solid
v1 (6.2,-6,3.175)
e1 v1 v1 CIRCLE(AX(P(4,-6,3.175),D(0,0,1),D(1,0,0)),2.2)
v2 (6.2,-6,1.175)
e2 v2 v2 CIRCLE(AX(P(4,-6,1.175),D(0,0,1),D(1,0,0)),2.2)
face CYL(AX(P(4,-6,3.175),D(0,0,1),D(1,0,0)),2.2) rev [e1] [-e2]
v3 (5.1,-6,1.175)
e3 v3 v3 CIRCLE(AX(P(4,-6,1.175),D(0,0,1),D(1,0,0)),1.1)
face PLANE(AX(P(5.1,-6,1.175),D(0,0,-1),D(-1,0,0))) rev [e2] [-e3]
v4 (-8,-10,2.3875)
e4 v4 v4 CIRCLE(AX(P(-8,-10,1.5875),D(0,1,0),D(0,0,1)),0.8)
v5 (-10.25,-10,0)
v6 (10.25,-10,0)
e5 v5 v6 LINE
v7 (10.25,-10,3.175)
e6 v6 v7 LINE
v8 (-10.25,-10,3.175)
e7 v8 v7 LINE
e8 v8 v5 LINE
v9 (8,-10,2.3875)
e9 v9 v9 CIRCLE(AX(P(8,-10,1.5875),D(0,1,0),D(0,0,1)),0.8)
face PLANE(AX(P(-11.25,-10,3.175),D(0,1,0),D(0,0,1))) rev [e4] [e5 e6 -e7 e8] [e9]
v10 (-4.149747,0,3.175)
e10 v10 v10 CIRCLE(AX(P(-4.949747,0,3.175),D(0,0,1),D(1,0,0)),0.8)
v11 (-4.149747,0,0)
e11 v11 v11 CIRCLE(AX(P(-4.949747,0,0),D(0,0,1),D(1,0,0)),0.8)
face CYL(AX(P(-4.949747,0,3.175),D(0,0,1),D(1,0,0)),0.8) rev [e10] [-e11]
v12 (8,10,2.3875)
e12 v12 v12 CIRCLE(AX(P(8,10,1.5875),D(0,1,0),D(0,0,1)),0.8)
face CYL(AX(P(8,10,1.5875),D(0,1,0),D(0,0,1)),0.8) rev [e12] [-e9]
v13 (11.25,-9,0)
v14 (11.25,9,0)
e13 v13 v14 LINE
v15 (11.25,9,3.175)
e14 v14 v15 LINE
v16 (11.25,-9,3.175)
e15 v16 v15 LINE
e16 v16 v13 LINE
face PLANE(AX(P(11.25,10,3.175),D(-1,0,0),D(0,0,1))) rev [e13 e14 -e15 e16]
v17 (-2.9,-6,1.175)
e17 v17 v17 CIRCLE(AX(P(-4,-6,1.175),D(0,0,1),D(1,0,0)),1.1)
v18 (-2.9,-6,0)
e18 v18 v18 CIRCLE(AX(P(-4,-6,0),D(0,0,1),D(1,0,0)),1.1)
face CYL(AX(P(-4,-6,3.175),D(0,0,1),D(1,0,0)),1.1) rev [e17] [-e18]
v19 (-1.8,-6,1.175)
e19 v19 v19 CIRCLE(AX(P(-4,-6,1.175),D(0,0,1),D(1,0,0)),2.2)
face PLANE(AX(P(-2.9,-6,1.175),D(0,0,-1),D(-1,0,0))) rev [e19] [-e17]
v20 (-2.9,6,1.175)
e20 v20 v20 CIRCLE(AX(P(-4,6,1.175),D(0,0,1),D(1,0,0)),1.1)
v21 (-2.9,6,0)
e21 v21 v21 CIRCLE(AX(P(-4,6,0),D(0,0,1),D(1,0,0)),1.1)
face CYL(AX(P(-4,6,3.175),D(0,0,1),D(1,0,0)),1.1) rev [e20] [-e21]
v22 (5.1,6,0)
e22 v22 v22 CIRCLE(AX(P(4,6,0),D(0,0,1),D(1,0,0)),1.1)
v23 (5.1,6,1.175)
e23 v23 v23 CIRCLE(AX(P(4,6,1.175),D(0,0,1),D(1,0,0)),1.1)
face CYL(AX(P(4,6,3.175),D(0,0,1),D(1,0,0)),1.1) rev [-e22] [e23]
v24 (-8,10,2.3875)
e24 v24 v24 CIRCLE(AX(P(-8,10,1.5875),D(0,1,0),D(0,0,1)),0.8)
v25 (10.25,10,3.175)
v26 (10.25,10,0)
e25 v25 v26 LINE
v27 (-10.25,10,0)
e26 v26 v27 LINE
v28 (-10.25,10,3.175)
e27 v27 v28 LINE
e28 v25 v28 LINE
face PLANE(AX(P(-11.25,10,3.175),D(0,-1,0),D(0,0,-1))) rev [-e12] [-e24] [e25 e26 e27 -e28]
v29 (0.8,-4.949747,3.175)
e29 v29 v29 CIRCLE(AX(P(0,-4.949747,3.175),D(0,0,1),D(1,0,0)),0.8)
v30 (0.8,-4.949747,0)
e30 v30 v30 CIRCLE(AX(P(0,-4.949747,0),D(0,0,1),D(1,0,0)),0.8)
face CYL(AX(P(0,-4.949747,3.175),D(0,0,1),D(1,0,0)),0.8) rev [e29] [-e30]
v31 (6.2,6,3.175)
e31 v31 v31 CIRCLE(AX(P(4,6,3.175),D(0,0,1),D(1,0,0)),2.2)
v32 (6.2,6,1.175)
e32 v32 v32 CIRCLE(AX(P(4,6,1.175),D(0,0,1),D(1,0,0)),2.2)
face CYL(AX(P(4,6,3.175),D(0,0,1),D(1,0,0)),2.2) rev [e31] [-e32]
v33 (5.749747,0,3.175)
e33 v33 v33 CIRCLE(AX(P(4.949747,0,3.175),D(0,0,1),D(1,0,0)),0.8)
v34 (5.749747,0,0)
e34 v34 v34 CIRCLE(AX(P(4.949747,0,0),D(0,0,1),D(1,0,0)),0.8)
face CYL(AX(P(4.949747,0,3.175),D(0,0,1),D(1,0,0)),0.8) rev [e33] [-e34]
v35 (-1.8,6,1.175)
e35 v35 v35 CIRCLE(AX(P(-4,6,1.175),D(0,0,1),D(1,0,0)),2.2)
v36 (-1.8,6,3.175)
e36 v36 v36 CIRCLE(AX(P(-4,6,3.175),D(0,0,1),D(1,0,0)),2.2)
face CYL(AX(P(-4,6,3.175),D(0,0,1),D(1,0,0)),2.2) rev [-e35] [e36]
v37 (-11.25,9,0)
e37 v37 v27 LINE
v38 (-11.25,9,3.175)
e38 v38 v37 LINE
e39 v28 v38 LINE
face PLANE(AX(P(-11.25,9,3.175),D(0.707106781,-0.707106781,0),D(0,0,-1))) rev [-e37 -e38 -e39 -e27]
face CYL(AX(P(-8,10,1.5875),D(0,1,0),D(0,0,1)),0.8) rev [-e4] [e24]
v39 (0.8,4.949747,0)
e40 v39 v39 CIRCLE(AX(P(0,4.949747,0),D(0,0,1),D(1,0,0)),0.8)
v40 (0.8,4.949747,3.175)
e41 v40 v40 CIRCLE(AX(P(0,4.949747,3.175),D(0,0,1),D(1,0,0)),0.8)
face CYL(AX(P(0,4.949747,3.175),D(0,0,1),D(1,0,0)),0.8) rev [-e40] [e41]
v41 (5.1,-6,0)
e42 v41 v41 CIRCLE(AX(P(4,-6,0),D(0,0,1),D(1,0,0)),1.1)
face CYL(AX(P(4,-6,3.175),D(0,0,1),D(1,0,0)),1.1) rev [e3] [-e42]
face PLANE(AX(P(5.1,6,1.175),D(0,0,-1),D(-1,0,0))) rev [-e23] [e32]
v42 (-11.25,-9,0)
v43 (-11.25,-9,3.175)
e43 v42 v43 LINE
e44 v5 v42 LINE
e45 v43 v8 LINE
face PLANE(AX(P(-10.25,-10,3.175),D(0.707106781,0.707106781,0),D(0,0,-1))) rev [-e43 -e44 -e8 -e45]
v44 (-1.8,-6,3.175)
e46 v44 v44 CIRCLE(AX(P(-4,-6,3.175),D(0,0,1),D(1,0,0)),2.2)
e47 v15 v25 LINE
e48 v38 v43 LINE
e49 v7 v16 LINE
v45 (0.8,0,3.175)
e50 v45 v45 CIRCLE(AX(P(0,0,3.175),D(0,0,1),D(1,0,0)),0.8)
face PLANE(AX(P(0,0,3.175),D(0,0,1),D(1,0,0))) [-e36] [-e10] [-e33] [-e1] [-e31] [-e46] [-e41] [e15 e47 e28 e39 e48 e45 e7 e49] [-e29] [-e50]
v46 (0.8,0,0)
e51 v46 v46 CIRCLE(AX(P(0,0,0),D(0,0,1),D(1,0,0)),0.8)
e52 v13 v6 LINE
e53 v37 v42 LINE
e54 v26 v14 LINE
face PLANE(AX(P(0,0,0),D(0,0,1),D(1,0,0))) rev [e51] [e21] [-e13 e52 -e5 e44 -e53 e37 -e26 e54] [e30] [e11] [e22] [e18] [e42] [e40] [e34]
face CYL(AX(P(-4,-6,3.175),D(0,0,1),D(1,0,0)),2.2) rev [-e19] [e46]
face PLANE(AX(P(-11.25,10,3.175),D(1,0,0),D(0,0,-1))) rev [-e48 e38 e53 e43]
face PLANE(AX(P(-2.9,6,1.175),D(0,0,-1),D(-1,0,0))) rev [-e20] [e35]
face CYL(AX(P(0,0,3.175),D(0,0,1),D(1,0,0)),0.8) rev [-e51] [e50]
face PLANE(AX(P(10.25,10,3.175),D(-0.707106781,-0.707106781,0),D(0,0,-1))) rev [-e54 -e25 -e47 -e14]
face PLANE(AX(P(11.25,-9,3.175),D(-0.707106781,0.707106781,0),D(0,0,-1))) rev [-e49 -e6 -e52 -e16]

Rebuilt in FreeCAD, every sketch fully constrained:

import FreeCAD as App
import Part
import Sketcher

V = App.Vector
Q = App.Units.Quantity


def edges_at(feature, points):
    """Names of the edges that pass closest to the given points."""
    edges = feature.Shape.Edges
    near = lambda p: min(range(len(edges)), key=lambda i: edges[i].distToShape(Part.Vertex(*p))[0])
    return sorted({f"Edge{near(p) + 1}" for p in points})

doc = App.newDocument("Part")
body = doc.addObject("PartDesign::Body", "Body")

# Sketch on XY plane
sketch1 = body.newObject("Sketcher::SketchObject", "Sketch")
sketch1.AttachmentSupport = (doc.getObject("XY_Plane"), [""])
sketch1.MapMode = "FlatFace"
sketch1.addGeometry(Part.LineSegment(V(-11, 10, 0), V(-11, -10, 0)), False)
sketch1.addGeometry(Part.LineSegment(V(-11, -10, 0), V(11, -10, 0)), False)
sketch1.addGeometry(Part.LineSegment(V(11, -10, 0), V(11, 10, 0)), False)
sketch1.addGeometry(Part.LineSegment(V(11, 10, 0), V(-11, 10, 0)), False)
sketch1.addConstraint(Sketcher.Constraint("Coincident", 0, 2, 1, 1))
sketch1.addConstraint(Sketcher.Constraint("Coincident", 1, 2, 2, 1))
sketch1.addConstraint(Sketcher.Constraint("Coincident", 2, 2, 3, 1))
sketch1.addConstraint(Sketcher.Constraint("Coincident", 3, 2, 0, 1))
sketch1.addConstraint(Sketcher.Constraint("Vertical", 0))
sketch1.addConstraint(Sketcher.Constraint("Horizontal", 1))
sketch1.addConstraint(Sketcher.Constraint("Vertical", 2))
sketch1.addConstraint(Sketcher.Constraint("Horizontal", 3))
sketch1.addConstraint(Sketcher.Constraint("Symmetric", 0, 2, 2, 2, -1, 1))
sketch1.addConstraint(Sketcher.Constraint("DistanceY", 0, 2, 0, 1, Q("20 mm")))
sketch1.addConstraint(Sketcher.Constraint("DistanceX", 1, 1, 1, 2, Q("22.5 mm")))
pad1 = body.newObject("PartDesign::Pad", "Pad")
pad1.Profile = sketch1
pad1.Length = 3.175

# Sketch on XY plane
sketch2 = body.newObject("Sketcher::SketchObject", "Sketch001")
sketch2.AttachmentSupport = (doc.getObject("XY_Plane"), [""])
sketch2.MapMode = "FlatFace"
sketch2.AttachmentOffset = App.Placement(V(0, 0, 3.175), App.Rotation())
sketch2.addGeometry(Part.Circle(V(4, 6, 0), V(0, 0, 1), 1.1), False)
sketch2.addGeometry(Part.Circle(V(-4, -6, 0), V(0, 0, 1), 1.1), False)
sketch2.addGeometry(Part.Circle(V(-4, 6, 0), V(0, 0, 1), 1.1), False)
sketch2.addGeometry(Part.Circle(V(4, -6, 0), V(0, 0, 1), 1.1), False)
sketch2.addConstraint(Sketcher.Constraint("Equal", 0, 1))
sketch2.addConstraint(Sketcher.Constraint("Equal", 1, 2))
sketch2.addConstraint(Sketcher.Constraint("Equal", 2, 3))
sketch2.addConstraint(Sketcher.Constraint("Symmetric", 0, 3, 1, 3, -1, 1))
sketch2.addConstraint(Sketcher.Constraint("Symmetric", 2, 3, 3, 3, -1, 1))
sketch2.addConstraint(Sketcher.Constraint("Symmetric", 0, 3, 2, 3, -2))
sketch2.addConstraint(Sketcher.Constraint("Diameter", 0, Q("2.2 mm")))
sketch2.addConstraint(Sketcher.Constraint("DistanceX", -1, 1, 0, 3, Q("4 mm")))
sketch2.addConstraint(Sketcher.Constraint("DistanceY", -1, 1, 0, 3, Q("6 mm")))
doc.recompute()
hole = body.newObject("PartDesign::Hole", "Hole")
hole.Profile = sketch2
hole.ThreadType = "None"
hole.Diameter = 2.2
hole.DepthType = "ThroughAll"
hole.HoleCutType = "Counterbore"
hole.HoleCutDiameter = 4.4
hole.HoleCutDepth = 2

# Sketch on XZ plane
sketch3 = body.newObject("Sketcher::SketchObject", "Sketch002")
sketch3.AttachmentSupport = (doc.getObject("XZ_Plane"), [""])
sketch3.MapMode = "FlatFace"
sketch3.AttachmentOffset = App.Placement(V(0, 0, -10), App.Rotation())
sketch3.addGeometry(Part.Circle(V(8, 1.6, 0), V(0, 0, 1), 0.8), False)
sketch3.addGeometry(Part.Circle(V(-8, 1.6, 0), V(0, 0, 1), 0.8), False)
sketch3.addConstraint(Sketcher.Constraint("Equal", 0, 1))
sketch3.addConstraint(Sketcher.Constraint("Symmetric", 0, 3, 1, 3, -2))
sketch3.addConstraint(Sketcher.Constraint("Diameter", 0, Q("1.6 mm")))
sketch3.addConstraint(Sketcher.Constraint("DistanceX", -1, 1, 0, 3, Q("8 mm")))
sketch3.addConstraint(Sketcher.Constraint("DistanceY", -1, 1, 0, 3, Q("1.5875 mm")))
doc.recompute()
hole2 = body.newObject("PartDesign::Hole", "Hole001")
hole2.Profile = sketch3
hole2.ThreadType = "None"
hole2.Diameter = 1.6
hole2.DepthType = "ThroughAll"
hole2.Reversed = True

# Sketch on XY plane
sketch4 = body.newObject("Sketcher::SketchObject", "Sketch003")
sketch4.AttachmentSupport = (doc.getObject("XY_Plane"), [""])
sketch4.MapMode = "FlatFace"
sketch4.AttachmentOffset = App.Placement(V(0, 0, 3.175), App.Rotation())
sketch4.addGeometry(Part.Circle(V(0, 0, 0), V(0, 0, 1), 0.8), False)
sketch4.addGeometry(Part.Circle(V(-4.9, 0, 0), V(0, 0, 1), 0.8), False)
sketch4.addGeometry(Part.Circle(V(0, -4.9, 0), V(0, 0, 1), 0.8), False)
sketch4.addGeometry(Part.Circle(V(4.9, 0, 0), V(0, 0, 1), 0.8), False)
sketch4.addGeometry(Part.Circle(V(0, 4.9, 0), V(0, 0, 1), 0.8), False)
sketch4.addConstraint(Sketcher.Constraint("Coincident", 0, 3, -1, 1))
sketch4.addConstraint(Sketcher.Constraint("Equal", 0, 1))
sketch4.addConstraint(Sketcher.Constraint("Equal", 1, 2))
sketch4.addConstraint(Sketcher.Constraint("Equal", 2, 3))
sketch4.addConstraint(Sketcher.Constraint("Equal", 3, 4))
sketch4.addConstraint(Sketcher.Constraint("Symmetric", 1, 3, 3, 3, -1, 1))
sketch4.addConstraint(Sketcher.Constraint("Symmetric", 2, 3, 4, 3, -1, 1))
sketch4.addConstraint(Sketcher.Constraint("PointOnObject", 1, 3, -1))
sketch4.addConstraint(Sketcher.Constraint("PointOnObject", 2, 3, -2))
sketch4.addConstraint(Sketcher.Constraint("Diameter", 0, Q("1.6 mm")))
sketch4.addConstraint(Sketcher.Constraint("DistanceX", 1, 3, -1, 1, Q("4.949747 mm")))
sketch4.addConstraint(Sketcher.Constraint("DistanceY", 2, 3, -1, 1, Q("4.949747 mm")))
doc.recompute()
hole3 = body.newObject("PartDesign::Hole", "Hole002")
hole3.Profile = sketch4
hole3.ThreadType = "None"
hole3.Diameter = 1.6
hole3.DepthType = "ThroughAll"
doc.recompute()

chamfer = body.newObject("PartDesign::Chamfer", "Chamfer")
chamfer.Base = (hole3, edges_at(hole3, [
    (11.25, -10, 1.587),
    (-11.25, -10, 1.587),
    (-11.25, 10, 1.587),
    (11.25, 10, 1.587),
]))
chamfer.Size = 1

doc.recompute()
